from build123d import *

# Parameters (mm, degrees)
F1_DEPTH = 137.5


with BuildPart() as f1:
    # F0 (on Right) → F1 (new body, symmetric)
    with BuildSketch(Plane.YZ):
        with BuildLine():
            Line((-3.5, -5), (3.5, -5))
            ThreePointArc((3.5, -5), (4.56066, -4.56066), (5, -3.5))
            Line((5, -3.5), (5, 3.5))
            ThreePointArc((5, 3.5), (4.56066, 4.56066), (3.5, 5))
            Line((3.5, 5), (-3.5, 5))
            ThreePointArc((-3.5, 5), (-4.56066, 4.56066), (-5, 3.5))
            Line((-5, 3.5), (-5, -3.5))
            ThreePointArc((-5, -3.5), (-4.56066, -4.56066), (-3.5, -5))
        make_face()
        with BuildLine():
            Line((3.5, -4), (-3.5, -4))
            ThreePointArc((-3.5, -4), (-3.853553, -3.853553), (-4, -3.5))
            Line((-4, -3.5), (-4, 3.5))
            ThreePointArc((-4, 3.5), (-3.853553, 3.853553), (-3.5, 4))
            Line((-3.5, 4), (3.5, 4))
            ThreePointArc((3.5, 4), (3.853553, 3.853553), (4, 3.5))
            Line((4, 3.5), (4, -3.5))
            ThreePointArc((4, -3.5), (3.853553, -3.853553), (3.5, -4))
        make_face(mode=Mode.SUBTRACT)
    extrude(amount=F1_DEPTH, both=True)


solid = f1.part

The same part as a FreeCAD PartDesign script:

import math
import FreeCAD as App
import Part
import Sketcher
from FreeCAD import Vector

doc = App.newDocument("Part")
params = doc.addObject("Spreadsheet::Sheet", "Params")
for row, (alias, value) in enumerate([
    ("sketch1_radius", "1.500001 mm"),
    ("sketch1_radius2", "0.500001 mm"),
    ("sketch1_width", "7 mm"),
    ("pad1_length", "275 mm"),
], start=1):
    params.set(f"A{row}", alias)
    params.set(f"B{row}", "=" + value)
    params.setAlias(f"B{row}", alias)

body = doc.addObject("PartDesign::Body", "Body")

# Sketch on YZ plane
sketch1 = body.newObject("Sketcher::SketchObject", "Sketch")
sketch1.AttachmentSupport = (doc.getObject("YZ_Plane"), [""])
sketch1.MapMode = "FlatFace"
sketch1.addGeometry([
    Part.LineSegment(Vector(-3.5, -5, 0), Vector(3.5, -5, 0)),  # 0
    Part.ArcOfCircle(Part.Circle(Vector(3.5, -3.5, 0), Vector(0, 0, 1), 1.5), math.radians(-90), math.radians(0)),  # 1
    Part.LineSegment(Vector(5, -3.5, 0), Vector(5, 3.5, 0)),  # 2
    Part.ArcOfCircle(Part.Circle(Vector(3.5, 3.5, 0), Vector(0, 0, 1), 1.5), math.radians(0), math.radians(90)),  # 3
    Part.LineSegment(Vector(3.5, 5, 0), Vector(-3.5, 5, 0)),  # 4
    Part.ArcOfCircle(Part.Circle(Vector(-3.5, 3.5, 0), Vector(0, 0, 1), 1.5), math.radians(90), math.radians(180)),  # 5
    Part.LineSegment(Vector(-5, 3.5, 0), Vector(-5, -3.5, 0)),  # 6
    Part.ArcOfCircle(Part.Circle(Vector(-3.5, -3.5, 0), Vector(0, 0, 1), 1.5), math.radians(-180), math.radians(-90)),  # 7
    Part.ArcOfCircle(Part.Circle(Vector(3.5, -3.5, 0), Vector(0, 0, 1), 0.5), math.radians(-90), math.radians(0)),  # 8
    Part.LineSegment(Vector(3.5, -4, 0), Vector(-3.5, -4, 0)),  # 9
    Part.ArcOfCircle(Part.Circle(Vector(-3.5, -3.5, 0), Vector(0, 0, 1), 0.5), math.radians(-180), math.radians(-90)),  # 10
    Part.LineSegment(Vector(-4, -3.5, 0), Vector(-4, 3.5, 0)),  # 11
    Part.ArcOfCircle(Part.Circle(Vector(-3.5, 3.5, 0), Vector(0, 0, 1), 0.5), math.radians(90), math.radians(180)),  # 12
    Part.LineSegment(Vector(-3.5, 4, 0), Vector(3.5, 4, 0)),  # 13
    Part.ArcOfCircle(Part.Circle(Vector(3.5, 3.5, 0), Vector(0, 0, 1), 0.5), math.radians(0), math.radians(90)),  # 14
    Part.LineSegment(Vector(4, 3.5, 0), Vector(4, -3.5, 0)),  # 15
], False)
sketch1.addConstraint([
    Sketcher.Constraint("Tangent", 0, 2, 1, 1),
    Sketcher.Constraint("Tangent", 1, 2, 2, 1),
    Sketcher.Constraint("Tangent", 2, 2, 3, 1),
    Sketcher.Constraint("Tangent", 3, 2, 4, 1),
    Sketcher.Constraint("Tangent", 4, 2, 5, 1),
    Sketcher.Constraint("Tangent", 5, 2, 6, 1),
    Sketcher.Constraint("Tangent", 6, 2, 7, 1),
    Sketcher.Constraint("Tangent", 7, 2, 0, 1),
    Sketcher.Constraint("Coincident", 8, 1, 9, 1),
    Sketcher.Constraint("Coincident", 9, 2, 10, 2),
    Sketcher.Constraint("Coincident", 10, 1, 11, 1),
    Sketcher.Constraint("Coincident", 11, 2, 12, 2),
    Sketcher.Constraint("Coincident", 12, 1, 13, 1),
    Sketcher.Constraint("Coincident", 13, 2, 14, 2),
    Sketcher.Constraint("Coincident", 14, 1, 15, 1),
    Sketcher.Constraint("Coincident", 15, 2, 8, 2),
    Sketcher.Constraint("Horizontal", 0),
    Sketcher.Constraint("Vertical", 2),
    Sketcher.Constraint("Horizontal", 4),
    Sketcher.Constraint("Vertical", 6),
    Sketcher.Constraint("Horizontal", 9),
    Sketcher.Constraint("Vertical", 11),
    Sketcher.Constraint("Horizontal", 13),
    Sketcher.Constraint("Vertical", 15),
    Sketcher.Constraint("Coincident", 8, 3, 1, 3),
    Sketcher.Constraint("Coincident", 10, 3, 7, 3),
    Sketcher.Constraint("Coincident", 12, 3, 5, 3),
    Sketcher.Constraint("Equal", 1, 3),
    Sketcher.Constraint("Equal", 3, 5),
    Sketcher.Constraint("Equal", 5, 7),
    Sketcher.Constraint("Equal", 12, 14),
    Sketcher.Constraint("Symmetric", 1, 3, 5, 3, -1, 1),
    Sketcher.Constraint("Horizontal", 6, 2, 10, 1),
    Sketcher.Constraint("Horizontal", 5, 2, 11, 2),
    Sketcher.Constraint("Horizontal", 11, 2, 14, 1),
    Sketcher.Constraint("Horizontal", 10, 1, 15, 2),
    Sketcher.Constraint("Vertical", 3, 2, 8, 1),
    Sketcher.Constraint("Vertical", 7, 2, 9, 2),
    Sketcher.Constraint("Vertical", 9, 2, 12, 1),
    Sketcher.Constraint("Vertical", 8, 1, 13, 2),
    Sketcher.Constraint("Equal", 13, 2),
    Sketcher.Constraint("Radius", 1, 1.500001),
    Sketcher.Constraint("Radius", 8, 0.500001),
    Sketcher.Constraint("DistanceX", 0, 1, 0, 2, 7.0),
])
sketch1.setExpression("Constraints[41]", "Params.sketch1_radius")
sketch1.setExpression("Constraints[42]", "Params.sketch1_radius2")
sketch1.setExpression("Constraints[43]", "Params.sketch1_width")
pad1 = body.newObject("PartDesign::Pad", "Pad")
pad1.Profile = sketch1
pad1.setExpression("Length", "Params.pad1_length")
pad1.Midplane = True

doc.recompute()
